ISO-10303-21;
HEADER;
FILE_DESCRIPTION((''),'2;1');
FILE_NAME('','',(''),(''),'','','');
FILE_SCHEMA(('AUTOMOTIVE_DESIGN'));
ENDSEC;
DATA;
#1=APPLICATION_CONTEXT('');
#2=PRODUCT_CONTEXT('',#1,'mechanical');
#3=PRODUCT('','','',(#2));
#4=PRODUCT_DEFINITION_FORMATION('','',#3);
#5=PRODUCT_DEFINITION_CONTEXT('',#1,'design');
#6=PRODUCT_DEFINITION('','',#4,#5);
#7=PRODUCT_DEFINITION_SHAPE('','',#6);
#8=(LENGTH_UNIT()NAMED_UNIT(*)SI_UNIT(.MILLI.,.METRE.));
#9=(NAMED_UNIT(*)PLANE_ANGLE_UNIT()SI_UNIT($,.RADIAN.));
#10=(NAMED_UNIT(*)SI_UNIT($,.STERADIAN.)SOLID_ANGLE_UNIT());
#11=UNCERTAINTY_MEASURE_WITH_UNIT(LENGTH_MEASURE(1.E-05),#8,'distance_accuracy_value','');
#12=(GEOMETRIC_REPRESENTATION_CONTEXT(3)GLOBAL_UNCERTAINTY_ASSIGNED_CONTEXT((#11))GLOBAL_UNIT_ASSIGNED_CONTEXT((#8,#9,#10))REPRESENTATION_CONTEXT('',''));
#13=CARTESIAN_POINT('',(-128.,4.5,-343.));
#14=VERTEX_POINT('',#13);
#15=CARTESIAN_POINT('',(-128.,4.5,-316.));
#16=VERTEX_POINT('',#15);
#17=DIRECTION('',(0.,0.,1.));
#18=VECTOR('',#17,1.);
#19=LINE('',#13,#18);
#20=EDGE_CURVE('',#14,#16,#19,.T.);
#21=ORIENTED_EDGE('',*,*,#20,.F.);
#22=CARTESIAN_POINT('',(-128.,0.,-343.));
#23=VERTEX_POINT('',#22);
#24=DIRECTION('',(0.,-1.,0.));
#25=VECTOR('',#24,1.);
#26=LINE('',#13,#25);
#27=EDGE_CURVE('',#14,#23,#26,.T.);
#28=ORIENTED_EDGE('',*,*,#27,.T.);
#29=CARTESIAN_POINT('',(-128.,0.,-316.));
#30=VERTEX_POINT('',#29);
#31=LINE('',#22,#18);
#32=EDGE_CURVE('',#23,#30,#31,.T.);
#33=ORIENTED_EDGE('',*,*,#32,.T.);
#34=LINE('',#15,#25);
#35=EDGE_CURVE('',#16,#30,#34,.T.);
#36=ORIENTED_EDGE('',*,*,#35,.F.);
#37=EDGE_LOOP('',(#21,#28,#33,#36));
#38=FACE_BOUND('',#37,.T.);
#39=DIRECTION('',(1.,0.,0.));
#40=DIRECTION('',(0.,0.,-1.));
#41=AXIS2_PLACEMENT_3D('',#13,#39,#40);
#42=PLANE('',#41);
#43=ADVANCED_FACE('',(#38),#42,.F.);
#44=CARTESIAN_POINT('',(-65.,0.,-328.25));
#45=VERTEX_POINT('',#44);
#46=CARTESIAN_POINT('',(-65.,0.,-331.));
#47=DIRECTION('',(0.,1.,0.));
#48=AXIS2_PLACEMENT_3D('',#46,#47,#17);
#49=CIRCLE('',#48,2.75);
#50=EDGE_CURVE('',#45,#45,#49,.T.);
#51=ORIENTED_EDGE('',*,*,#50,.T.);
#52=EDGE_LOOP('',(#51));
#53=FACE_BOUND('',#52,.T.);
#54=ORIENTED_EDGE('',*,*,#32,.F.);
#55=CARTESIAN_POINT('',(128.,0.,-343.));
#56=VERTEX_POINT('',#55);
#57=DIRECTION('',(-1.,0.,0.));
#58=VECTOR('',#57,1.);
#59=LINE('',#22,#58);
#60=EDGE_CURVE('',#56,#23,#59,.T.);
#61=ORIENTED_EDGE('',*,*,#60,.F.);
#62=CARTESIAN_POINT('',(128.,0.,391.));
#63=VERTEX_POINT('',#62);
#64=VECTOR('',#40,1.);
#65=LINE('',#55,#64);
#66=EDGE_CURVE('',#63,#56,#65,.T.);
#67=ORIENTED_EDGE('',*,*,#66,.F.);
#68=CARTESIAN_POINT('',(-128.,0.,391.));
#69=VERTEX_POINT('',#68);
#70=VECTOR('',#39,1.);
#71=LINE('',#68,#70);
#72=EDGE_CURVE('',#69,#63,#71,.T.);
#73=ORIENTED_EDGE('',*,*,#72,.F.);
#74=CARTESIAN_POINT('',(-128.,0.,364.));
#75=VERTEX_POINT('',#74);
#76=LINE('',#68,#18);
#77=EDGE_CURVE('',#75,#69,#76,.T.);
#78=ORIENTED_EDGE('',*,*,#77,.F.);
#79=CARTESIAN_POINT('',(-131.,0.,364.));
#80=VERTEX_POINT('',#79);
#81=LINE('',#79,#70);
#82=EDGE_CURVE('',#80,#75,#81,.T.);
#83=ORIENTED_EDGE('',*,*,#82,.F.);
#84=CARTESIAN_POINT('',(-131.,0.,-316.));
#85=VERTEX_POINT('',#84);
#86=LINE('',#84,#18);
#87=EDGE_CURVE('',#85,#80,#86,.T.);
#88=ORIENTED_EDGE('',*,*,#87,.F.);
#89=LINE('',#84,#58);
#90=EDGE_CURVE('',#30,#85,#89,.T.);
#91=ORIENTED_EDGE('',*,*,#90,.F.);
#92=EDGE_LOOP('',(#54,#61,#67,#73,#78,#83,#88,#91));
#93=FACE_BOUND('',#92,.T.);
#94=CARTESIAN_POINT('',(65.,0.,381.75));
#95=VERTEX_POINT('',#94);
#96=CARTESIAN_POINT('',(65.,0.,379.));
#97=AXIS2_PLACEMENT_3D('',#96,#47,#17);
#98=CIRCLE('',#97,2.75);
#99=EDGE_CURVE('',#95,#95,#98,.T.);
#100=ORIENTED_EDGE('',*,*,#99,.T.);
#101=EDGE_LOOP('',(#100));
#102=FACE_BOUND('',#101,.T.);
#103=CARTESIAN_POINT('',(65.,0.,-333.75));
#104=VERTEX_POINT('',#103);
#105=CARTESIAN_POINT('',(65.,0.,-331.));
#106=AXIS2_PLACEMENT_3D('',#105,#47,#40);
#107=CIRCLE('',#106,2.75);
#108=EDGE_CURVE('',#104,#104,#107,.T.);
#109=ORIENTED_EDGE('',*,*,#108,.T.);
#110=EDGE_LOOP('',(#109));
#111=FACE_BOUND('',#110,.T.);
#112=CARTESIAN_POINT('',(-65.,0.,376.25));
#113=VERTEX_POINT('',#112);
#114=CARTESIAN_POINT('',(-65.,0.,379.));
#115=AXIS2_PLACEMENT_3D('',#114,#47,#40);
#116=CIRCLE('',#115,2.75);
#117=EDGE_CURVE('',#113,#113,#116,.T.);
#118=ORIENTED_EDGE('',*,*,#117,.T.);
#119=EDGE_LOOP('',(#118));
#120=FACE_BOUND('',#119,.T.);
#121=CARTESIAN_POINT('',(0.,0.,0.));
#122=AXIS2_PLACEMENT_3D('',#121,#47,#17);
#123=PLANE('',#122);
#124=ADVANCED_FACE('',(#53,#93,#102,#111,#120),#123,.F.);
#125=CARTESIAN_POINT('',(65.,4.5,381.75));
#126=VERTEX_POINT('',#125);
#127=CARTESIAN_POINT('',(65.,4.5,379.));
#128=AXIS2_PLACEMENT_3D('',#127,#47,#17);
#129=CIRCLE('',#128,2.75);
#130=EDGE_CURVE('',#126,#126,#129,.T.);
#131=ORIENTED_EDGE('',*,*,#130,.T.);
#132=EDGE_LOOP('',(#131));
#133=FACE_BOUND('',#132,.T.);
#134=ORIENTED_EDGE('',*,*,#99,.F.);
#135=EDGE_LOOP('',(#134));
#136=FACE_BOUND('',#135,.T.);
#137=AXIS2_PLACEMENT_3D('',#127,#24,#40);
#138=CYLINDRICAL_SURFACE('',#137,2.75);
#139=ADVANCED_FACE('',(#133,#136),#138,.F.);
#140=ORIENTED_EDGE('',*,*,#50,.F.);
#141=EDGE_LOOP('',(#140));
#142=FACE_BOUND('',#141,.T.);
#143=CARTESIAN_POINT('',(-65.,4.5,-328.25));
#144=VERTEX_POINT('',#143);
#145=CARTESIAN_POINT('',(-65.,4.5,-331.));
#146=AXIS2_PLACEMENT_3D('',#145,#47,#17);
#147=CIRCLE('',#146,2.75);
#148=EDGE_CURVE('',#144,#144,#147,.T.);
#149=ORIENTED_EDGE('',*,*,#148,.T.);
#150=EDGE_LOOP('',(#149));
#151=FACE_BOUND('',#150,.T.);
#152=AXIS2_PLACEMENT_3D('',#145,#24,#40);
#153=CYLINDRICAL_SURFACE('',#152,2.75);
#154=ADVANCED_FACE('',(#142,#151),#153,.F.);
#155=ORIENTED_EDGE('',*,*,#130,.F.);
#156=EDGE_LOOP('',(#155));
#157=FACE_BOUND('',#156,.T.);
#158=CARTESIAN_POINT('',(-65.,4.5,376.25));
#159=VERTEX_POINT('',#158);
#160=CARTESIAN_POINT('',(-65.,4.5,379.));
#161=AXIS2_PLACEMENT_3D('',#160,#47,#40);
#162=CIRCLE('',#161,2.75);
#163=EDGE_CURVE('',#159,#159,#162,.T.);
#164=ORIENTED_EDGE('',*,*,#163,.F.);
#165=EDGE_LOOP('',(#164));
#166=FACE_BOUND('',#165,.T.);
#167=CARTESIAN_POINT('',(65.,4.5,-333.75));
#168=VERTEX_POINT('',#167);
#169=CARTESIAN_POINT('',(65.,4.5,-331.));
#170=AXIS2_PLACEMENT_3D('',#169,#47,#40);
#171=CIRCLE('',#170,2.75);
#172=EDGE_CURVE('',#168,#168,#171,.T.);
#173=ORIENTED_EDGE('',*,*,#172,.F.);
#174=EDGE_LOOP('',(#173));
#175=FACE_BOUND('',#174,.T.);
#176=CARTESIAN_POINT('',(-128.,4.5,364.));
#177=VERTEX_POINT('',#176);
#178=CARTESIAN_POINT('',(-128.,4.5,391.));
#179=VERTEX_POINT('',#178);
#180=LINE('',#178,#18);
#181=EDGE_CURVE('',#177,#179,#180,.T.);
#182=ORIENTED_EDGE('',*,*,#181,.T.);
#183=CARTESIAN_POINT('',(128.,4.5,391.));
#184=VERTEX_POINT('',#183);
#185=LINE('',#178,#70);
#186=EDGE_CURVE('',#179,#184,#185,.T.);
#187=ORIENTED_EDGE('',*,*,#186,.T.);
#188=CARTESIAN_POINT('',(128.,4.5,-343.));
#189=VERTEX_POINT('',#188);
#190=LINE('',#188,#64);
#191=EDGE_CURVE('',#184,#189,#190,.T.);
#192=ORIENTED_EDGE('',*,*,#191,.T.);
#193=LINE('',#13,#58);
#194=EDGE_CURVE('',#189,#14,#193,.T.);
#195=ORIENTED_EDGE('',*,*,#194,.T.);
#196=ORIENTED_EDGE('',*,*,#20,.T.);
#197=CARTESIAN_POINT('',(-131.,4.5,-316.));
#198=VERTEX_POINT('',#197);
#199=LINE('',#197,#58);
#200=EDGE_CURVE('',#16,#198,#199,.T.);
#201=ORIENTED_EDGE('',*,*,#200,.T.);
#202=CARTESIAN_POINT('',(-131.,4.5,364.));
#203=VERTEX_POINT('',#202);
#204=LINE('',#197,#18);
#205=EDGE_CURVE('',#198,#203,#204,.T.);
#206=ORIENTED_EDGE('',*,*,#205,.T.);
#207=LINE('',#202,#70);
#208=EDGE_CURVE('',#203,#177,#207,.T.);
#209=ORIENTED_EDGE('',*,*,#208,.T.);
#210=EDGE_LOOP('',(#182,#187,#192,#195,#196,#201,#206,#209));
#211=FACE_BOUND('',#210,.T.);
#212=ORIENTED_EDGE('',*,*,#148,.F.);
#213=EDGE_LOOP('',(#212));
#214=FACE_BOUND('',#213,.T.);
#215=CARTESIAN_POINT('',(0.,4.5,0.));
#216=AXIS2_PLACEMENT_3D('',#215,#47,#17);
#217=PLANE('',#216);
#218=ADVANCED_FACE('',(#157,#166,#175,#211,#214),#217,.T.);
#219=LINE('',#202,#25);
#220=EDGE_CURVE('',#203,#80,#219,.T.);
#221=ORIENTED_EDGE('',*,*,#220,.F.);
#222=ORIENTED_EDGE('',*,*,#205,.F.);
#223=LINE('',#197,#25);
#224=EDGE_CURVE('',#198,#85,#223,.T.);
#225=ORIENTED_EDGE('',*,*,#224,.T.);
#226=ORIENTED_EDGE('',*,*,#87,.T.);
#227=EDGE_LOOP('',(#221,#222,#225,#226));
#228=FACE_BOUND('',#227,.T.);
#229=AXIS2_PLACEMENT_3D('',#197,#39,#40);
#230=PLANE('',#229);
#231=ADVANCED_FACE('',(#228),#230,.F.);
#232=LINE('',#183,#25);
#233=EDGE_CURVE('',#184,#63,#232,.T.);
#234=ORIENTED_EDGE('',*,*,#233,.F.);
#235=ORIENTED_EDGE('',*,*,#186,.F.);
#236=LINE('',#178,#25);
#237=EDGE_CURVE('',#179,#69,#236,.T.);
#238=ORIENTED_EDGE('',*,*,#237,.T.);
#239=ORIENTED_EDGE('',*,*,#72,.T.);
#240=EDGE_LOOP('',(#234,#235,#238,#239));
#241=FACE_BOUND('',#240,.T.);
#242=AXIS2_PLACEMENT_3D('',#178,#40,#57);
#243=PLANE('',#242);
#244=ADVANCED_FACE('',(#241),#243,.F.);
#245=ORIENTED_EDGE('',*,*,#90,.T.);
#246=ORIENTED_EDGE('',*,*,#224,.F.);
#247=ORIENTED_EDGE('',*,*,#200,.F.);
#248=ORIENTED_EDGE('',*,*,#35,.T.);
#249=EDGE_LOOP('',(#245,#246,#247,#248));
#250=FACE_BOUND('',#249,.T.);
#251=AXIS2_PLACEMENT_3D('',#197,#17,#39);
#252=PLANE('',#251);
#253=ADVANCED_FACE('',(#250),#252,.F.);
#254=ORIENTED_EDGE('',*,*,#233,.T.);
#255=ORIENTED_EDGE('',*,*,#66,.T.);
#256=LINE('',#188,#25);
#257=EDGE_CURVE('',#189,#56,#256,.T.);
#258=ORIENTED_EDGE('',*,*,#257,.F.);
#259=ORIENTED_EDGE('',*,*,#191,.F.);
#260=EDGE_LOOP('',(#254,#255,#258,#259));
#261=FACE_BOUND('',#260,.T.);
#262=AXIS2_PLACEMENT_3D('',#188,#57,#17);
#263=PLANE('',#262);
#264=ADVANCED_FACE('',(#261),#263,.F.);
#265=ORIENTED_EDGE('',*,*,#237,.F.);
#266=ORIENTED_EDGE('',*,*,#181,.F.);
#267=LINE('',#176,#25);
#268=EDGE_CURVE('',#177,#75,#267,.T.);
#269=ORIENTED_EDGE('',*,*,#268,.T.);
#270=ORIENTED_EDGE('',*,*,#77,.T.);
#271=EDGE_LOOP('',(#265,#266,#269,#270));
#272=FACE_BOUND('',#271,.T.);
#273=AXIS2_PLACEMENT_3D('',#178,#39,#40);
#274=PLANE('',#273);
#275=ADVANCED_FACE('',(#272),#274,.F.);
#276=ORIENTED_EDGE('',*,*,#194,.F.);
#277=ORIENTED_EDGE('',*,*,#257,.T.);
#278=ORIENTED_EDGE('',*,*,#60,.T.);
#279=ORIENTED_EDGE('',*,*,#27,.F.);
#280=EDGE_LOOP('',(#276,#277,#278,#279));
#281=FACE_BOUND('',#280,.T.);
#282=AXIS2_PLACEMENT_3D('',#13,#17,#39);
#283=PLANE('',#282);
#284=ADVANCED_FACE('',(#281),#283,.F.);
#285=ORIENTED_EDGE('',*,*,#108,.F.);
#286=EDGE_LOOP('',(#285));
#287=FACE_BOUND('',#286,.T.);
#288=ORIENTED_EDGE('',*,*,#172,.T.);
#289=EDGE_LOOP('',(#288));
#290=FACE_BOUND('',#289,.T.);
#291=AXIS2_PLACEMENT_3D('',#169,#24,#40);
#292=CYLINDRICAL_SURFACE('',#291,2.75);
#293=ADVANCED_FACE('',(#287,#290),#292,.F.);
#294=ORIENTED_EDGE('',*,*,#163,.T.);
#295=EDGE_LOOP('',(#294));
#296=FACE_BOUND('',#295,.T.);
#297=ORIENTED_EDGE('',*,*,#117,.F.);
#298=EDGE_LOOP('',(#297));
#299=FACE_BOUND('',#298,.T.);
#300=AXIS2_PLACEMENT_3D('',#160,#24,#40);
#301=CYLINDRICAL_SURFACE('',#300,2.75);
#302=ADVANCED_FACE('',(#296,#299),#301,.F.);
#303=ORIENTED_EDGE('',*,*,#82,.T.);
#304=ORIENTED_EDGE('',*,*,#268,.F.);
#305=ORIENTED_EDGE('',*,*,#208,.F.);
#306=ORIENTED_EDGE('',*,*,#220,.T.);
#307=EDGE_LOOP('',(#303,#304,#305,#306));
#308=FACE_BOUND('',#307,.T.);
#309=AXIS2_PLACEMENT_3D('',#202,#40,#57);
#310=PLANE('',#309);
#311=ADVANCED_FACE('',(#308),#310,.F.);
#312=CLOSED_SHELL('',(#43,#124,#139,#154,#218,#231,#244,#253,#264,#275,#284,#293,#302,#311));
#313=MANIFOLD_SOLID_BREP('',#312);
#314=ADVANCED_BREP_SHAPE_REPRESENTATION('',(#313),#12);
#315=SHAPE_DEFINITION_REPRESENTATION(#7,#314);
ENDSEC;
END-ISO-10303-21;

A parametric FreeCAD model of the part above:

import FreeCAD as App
import Part
import Sketcher

V = App.Vector
Q = App.Units.Quantity


def add_polygon(sketch, points):
    """Adds a closed chain of lines whose ends are joined by coincident constraints."""
    first, n = sketch.GeometryCount, len(points)
    for a, b in zip(points, points[1:] + points[:1]):
        sketch.addGeometry(Part.LineSegment(App.Vector(*a, 0), App.Vector(*b, 0)), False)
    for i in range(n):
        sketch.addConstraint(Sketcher.Constraint("Coincident", first + i, 2, first + (i + 1) % n, 1))

doc = App.newDocument("Part")
body = doc.addObject("PartDesign::Body", "Body")

sketch1 = body.newObject("Sketcher::SketchObject", "Sketch")
sketch1.AttachmentSupport = (doc.getObject("XZ_Plane"), [""])
sketch1.MapMode = "FlatFace"
add_polygon(sketch1, [(128, -343), (-128, -343), (-128, -316), (-131, -316), (-131, 364), (-128, 364), (-128, 391), (128, 391)])
sketch1.addGeometry(Part.Circle(V(65, 379, 0), V(0, 0, 1), 2.8), False)
sketch1.addGeometry(Part.Circle(V(-65, 379, 0), V(0, 0, 1), 2.8), False)
sketch1.addGeometry(Part.Circle(V(65, -331, 0), V(0, 0, 1), 2.8), False)
sketch1.addGeometry(Part.Circle(V(-65, -331, 0), V(0, 0, 1), 2.8), False)
sketch1.addConstraint([
    Sketcher.Constraint("Horizontal", 0),
    Sketcher.Constraint("Vertical", 1),
    Sketcher.Constraint("Horizontal", 2),
    Sketcher.Constraint("Vertical", 3),
    Sketcher.Constraint("Horizontal", 4),
    Sketcher.Constraint("Vertical", 5),
    Sketcher.Constraint("Horizontal", 6),
    Sketcher.Constraint("Vertical", 7),
    Sketcher.Constraint("Equal", 8, 9),
    Sketcher.Constraint("Equal", 9, 10),
    Sketcher.Constraint("Equal", 10, 11),
    Sketcher.Constraint("Symmetric", 8, 3, 9, 3, -2),
    Sketcher.Constraint("Symmetric", 10, 3, 11, 3, -2),
    Sketcher.Constraint("Vertical", 8, 3, 10, 3),
    Sketcher.Constraint("Vertical", 1, 2, 4, 2),
    Sketcher.Constraint("Equal", 1, 5),
    Sketcher.Constraint("Diameter", 8, Q("5.5 mm")),
    Sketcher.Constraint("DistanceX", 0, 2, 0, 1, Q("256 mm")),
    Sketcher.Constraint("DistanceX", 2, 2, 2, 1, Q("3 mm")),
    Sketcher.Constraint("DistanceY", 1, 1, 1, 2, Q("27 mm")),
    Sketcher.Constraint("DistanceY", 3, 1, 3, 2, Q("680 mm")),
    Sketcher.Constraint("DistanceX", -1, 1, 8, 3, Q("65 mm")),
    Sketcher.Constraint("DistanceY", -1, 1, 8, 3, Q("379 mm")),
    Sketcher.Constraint("DistanceY", 10, 3, -1, 1, Q("331 mm")),
    Sketcher.Constraint("DistanceX", 0, 2, -1, 1, Q("128 mm")),
    Sketcher.Constraint("DistanceY", 0, 2, -1, 1, Q("343 mm")),
])
pad1 = body.newObject("PartDesign::Pad", "Pad")
pad1.Profile = sketch1
pad1.Length = 4.5
pad1.Reversed = True

doc.recompute()
